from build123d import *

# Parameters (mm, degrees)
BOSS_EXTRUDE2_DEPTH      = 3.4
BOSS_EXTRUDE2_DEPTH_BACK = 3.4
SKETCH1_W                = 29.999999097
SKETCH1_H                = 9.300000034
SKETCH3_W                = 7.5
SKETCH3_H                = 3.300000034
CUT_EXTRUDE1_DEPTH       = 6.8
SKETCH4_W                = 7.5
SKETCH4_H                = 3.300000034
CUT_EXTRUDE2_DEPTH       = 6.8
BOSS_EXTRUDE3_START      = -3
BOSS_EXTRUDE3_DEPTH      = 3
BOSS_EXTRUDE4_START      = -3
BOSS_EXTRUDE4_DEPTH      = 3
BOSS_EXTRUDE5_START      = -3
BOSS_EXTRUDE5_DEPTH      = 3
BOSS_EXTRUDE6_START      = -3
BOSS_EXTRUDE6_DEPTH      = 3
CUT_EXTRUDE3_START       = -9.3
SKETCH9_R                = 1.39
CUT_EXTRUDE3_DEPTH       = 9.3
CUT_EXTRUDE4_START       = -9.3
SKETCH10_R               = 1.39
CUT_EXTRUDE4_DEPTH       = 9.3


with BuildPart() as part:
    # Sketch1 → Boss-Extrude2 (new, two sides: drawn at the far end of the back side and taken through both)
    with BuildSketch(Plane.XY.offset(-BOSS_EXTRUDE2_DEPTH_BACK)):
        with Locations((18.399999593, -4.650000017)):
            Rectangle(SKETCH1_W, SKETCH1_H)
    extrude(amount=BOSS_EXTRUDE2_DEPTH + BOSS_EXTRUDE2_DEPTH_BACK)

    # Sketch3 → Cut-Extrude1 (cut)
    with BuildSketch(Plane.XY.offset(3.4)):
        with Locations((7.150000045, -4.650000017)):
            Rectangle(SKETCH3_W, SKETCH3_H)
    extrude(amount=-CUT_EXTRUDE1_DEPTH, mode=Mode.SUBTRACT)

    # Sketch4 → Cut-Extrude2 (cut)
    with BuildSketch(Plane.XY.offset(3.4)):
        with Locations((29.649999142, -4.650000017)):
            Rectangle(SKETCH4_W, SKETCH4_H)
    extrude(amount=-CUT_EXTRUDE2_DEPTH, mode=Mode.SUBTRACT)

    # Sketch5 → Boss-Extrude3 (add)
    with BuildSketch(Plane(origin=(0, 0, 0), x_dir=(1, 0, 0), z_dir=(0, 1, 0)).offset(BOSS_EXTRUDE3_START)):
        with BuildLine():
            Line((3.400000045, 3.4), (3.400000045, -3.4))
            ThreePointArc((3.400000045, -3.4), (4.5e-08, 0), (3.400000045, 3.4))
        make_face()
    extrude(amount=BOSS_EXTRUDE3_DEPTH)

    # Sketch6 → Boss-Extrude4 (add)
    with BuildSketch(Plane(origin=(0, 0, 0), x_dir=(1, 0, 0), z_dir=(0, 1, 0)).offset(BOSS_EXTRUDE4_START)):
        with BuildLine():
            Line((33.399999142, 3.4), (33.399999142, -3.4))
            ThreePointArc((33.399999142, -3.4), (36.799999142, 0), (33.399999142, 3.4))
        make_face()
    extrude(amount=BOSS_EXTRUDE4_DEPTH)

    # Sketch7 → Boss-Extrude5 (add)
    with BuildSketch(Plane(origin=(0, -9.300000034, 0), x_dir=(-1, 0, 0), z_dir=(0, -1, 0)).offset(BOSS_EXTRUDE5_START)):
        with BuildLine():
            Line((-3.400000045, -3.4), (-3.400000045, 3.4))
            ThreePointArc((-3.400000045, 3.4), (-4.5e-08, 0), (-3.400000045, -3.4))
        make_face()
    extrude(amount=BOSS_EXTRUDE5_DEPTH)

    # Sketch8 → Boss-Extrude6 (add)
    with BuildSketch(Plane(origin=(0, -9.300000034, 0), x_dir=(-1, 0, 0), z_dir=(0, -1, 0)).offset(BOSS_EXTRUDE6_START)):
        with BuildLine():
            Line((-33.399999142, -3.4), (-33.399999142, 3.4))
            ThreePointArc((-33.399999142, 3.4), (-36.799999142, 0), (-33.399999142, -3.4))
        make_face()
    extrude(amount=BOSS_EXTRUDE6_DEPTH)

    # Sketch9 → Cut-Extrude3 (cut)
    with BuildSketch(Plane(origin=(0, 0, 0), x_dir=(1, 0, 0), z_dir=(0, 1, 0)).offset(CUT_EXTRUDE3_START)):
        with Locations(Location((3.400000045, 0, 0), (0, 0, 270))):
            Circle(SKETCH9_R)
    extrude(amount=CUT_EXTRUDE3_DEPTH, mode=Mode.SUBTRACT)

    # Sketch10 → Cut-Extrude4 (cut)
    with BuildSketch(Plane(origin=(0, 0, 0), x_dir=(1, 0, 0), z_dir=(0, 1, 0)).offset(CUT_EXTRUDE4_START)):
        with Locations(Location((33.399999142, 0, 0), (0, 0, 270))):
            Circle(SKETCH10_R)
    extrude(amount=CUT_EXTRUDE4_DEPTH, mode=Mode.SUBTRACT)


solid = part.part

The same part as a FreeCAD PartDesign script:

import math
import FreeCAD as App
import Part
import Sketcher

V = App.Vector
Q = App.Units.Quantity

doc = App.newDocument("Part")
params = doc.addObject("Spreadsheet::Sheet", "Params")
for row, (alias, value) in enumerate([
    ("sketch1_width", "29.999999 mm"),
    ("sketch1_height", "9.3 mm"),
    ("pad1_length", "3.4 mm"),
    ("pad1_length2", "3.4 mm"),
    ("sketch2_width", "7.5 mm"),
    ("sketch2_height", "3.3 mm"),
    ("pocket1_length", "6.8 mm"),
    ("sketch3_width", "7.5 mm"),
    ("sketch3_height", "3.3 mm"),
    ("pocket2_length", "6.8 mm"),
    ("sketch4_radius", "3.4 mm"),
    ("pad2_length", "3 mm"),
    ("sketch5_radius", "3.4 mm"),
    ("pad3_length", "3 mm"),
    ("sketch6_radius", "3.4 mm"),
    ("pad4_length", "3 mm"),
    ("sketch7_radius", "3.4 mm"),
    ("pad5_length", "3 mm"),
    ("sketch8_diameter", "2.78 mm"),
    ("pocket3_length", "9.3 mm"),
    ("sketch9_diameter", "2.78 mm"),
    ("pocket4_length", "9.3 mm"),
], start=1):
    params.set(f"A{row}", alias)
    params.set(f"B{row}", "=" + value)
    params.setAlias(f"B{row}", alias)

body = doc.addObject("PartDesign::Body", "Body")

# Sketch on XY plane
sketch1 = doc.addObject("Sketcher::SketchObject", "Sketch")
body.addObject(sketch1)
sketch1.AttachmentSupport = (doc.XY_Plane, [""])
sketch1.MapMode = "FlatFace"
sketch1.addGeometry(Part.LineSegment(V(3, 0, 0), V(3, -9, 0)), False)
sketch1.addGeometry(Part.LineSegment(V(3, -9, 0), V(33, -9, 0)), False)
sketch1.addGeometry(Part.LineSegment(V(33, -9, 0), V(33, 0, 0)), False)
sketch1.addGeometry(Part.LineSegment(V(33, 0, 0), V(3, 0, 0)), False)
sketch1.addConstraint(Sketcher.Constraint("Coincident", 0, 2, 1, 1))
sketch1.addConstraint(Sketcher.Constraint("Coincident", 1, 2, 2, 1))
sketch1.addConstraint(Sketcher.Constraint("Coincident", 2, 2, 3, 1))
sketch1.addConstraint(Sketcher.Constraint("Coincident", 3, 2, 0, 1))
sketch1.addConstraint(Sketcher.Constraint("Vertical", 0))
sketch1.addConstraint(Sketcher.Constraint("Horizontal", 1))
sketch1.addConstraint(Sketcher.Constraint("Vertical", 2))
sketch1.addConstraint(Sketcher.Constraint("Horizontal", 3))
sketch1.addConstraint(Sketcher.Constraint("PointOnObject", 2, 2, -1))
sketch1.addConstraint(Sketcher.Constraint("DistanceX", 1, 1, 1, 2, Q("29.999999 mm")))
sketch1.addConstraint(Sketcher.Constraint("DistanceY", 0, 2, 0, 1, Q("9.3 mm")))
sketch1.addConstraint(Sketcher.Constraint("DistanceX", -1, 1, 0, 2, Q("3.4 mm")))
sketch1.setExpression("Constraints[9]", "Params.sketch1_width")
sketch1.setExpression("Constraints[10]", "Params.sketch1_height")
pad1 = doc.addObject("PartDesign::Pad", "Pad")
body.addObject(pad1)
pad1.Profile = sketch1
pad1.Type = "TwoLengths"
pad1.setExpression("Length", "Params.pad1_length")
pad1.setExpression("Length2", "Params.pad1_length2")

# Sketch on XY plane
sketch2 = doc.addObject("Sketcher::SketchObject", "Sketch001")
body.addObject(sketch2)
sketch2.AttachmentSupport = (doc.XY_Plane, [""])
sketch2.MapMode = "FlatFace"
sketch2.AttachmentOffset = App.Placement(V(0, 0, 3.4), App.Rotation())
sketch2.addGeometry(Part.LineSegment(V(3.4, -3, 0), V(3.4, -6.3, 0)), False)
sketch2.addGeometry(Part.LineSegment(V(3.4, -6.3, 0), V(10.9, -6.3, 0)), False)
sketch2.addGeometry(Part.LineSegment(V(10.9, -6.3, 0), V(10.9, -3, 0)), False)
sketch2.addGeometry(Part.LineSegment(V(10.9, -3, 0), V(3.4, -3, 0)), False)
sketch2.addConstraint(Sketcher.Constraint("Coincident", 0, 2, 1, 1))
sketch2.addConstraint(Sketcher.Constraint("Coincident", 1, 2, 2, 1))
sketch2.addConstraint(Sketcher.Constraint("Coincident", 2, 2, 3, 1))
sketch2.addConstraint(Sketcher.Constraint("Coincident", 3, 2, 0, 1))
sketch2.addConstraint(Sketcher.Constraint("Vertical", 0))
sketch2.addConstraint(Sketcher.Constraint("Horizontal", 1))
sketch2.addConstraint(Sketcher.Constraint("Vertical", 2))
sketch2.addConstraint(Sketcher.Constraint("Horizontal", 3))
sketch2.addConstraint(Sketcher.Constraint("DistanceX", 1, 1, 1, 2, Q("7.5 mm")))
sketch2.addConstraint(Sketcher.Constraint("DistanceY", 0, 2, 0, 1, Q("3.3 mm")))
sketch2.addConstraint(Sketcher.Constraint("DistanceY", 2, 2, -1, 1, Q("3 mm")))
sketch2.addConstraint(Sketcher.Constraint("DistanceX", -1, 1, 0, 2, Q("3.4 mm")))
sketch2.setExpression("Constraints[8]", "Params.sketch2_width")
sketch2.setExpression("Constraints[9]", "Params.sketch2_height")
pocket1 = doc.addObject("PartDesign::Pocket", "Pocket")
body.addObject(pocket1)
pocket1.Profile = sketch2
pocket1.setExpression("Length", "Params.pocket1_length")

# Sketch on XY plane
sketch3 = doc.addObject("Sketcher::SketchObject", "Sketch002")
body.addObject(sketch3)
sketch3.AttachmentSupport = (doc.XY_Plane, [""])
sketch3.MapMode = "FlatFace"
sketch3.AttachmentOffset = App.Placement(V(0, 0, 3.4), App.Rotation())
sketch3.addGeometry(Part.LineSegment(V(25.9, -3, 0), V(25.9, -6.3, 0)), False)
sketch3.addGeometry(Part.LineSegment(V(25.9, -6.3, 0), V(33.4, -6.3, 0)), False)
sketch3.addGeometry(Part.LineSegment(V(33.4, -6.3, 0), V(33.4, -3, 0)), False)
sketch3.addGeometry(Part.LineSegment(V(33.4, -3, 0), V(25.9, -3, 0)), False)
sketch3.addConstraint(Sketcher.Constraint("Coincident", 0, 2, 1, 1))
sketch3.addConstraint(Sketcher.Constraint("Coincident", 1, 2, 2, 1))
sketch3.addConstraint(Sketcher.Constraint("Coincident", 2, 2, 3, 1))
sketch3.addConstraint(Sketcher.Constraint("Coincident", 3, 2, 0, 1))
sketch3.addConstraint(Sketcher.Constraint("Vertical", 0))
sketch3.addConstraint(Sketcher.Constraint("Horizontal", 1))
sketch3.addConstraint(Sketcher.Constraint("Vertical", 2))
sketch3.addConstraint(Sketcher.Constraint("Horizontal", 3))
sketch3.addConstraint(Sketcher.Constraint("DistanceX", 1, 1, 1, 2, Q("7.5 mm")))
sketch3.addConstraint(Sketcher.Constraint("DistanceY", 0, 2, 0, 1, Q("3.3 mm")))
sketch3.addConstraint(Sketcher.Constraint("DistanceY", 2, 2, -1, 1, Q("3 mm")))
sketch3.addConstraint(Sketcher.Constraint("DistanceX", -1, 1, 0, 2, Q("25.899999 mm")))
sketch3.setExpression("Constraints[8]", "Params.sketch3_width")
sketch3.setExpression("Constraints[9]", "Params.sketch3_height")
pocket2 = doc.addObject("PartDesign::Pocket", "Pocket001")
body.addObject(pocket2)
pocket2.Profile = sketch3
pocket2.setExpression("Length", "Params.pocket2_length")

# Sketch on XZ plane
sketch4 = doc.addObject("Sketcher::SketchObject", "Sketch003")
body.addObject(sketch4)
sketch4.AttachmentSupport = (doc.XZ_Plane, [""])
sketch4.MapMode = "FlatFace"
sketch4.AttachmentOffset = App.Placement(V(0, 0, 3), App.Rotation())
sketch4.addGeometry(Part.LineSegment(V(3.4, 3.4, 0), V(3.4, -3.4, 0)), False)
sketch4.addGeometry(Part.ArcOfCircle(Part.Circle(V(3.4, 0, 0), V(0, 0, 1), 3.4), math.radians(90), math.radians(270)), False)
sketch4.addConstraint(Sketcher.Constraint("Coincident", 0, 1, 1, 1))
sketch4.addConstraint(Sketcher.Constraint("Coincident", 1, 2, 0, 2))
sketch4.addConstraint(Sketcher.Constraint("Vertical", 0))
sketch4.addConstraint(Sketcher.Constraint("PointOnObject", 1, 3, -1))
sketch4.addConstraint(Sketcher.Constraint("Vertical", 1, 3, 0, 1))
sketch4.addConstraint(Sketcher.Constraint("Radius", 1, Q("3.4 mm")))
sketch4.addConstraint(Sketcher.Constraint("DistanceX", -1, 1, 1, 3, Q("3.4 mm")))
sketch4.setExpression("Constraints[5]", "Params.sketch4_radius")
pad2 = doc.addObject("PartDesign::Pad", "Pad001")
body.addObject(pad2)
pad2.Profile = sketch4
pad2.setExpression("Length", "Params.pad2_length")
pad2.Reversed = True

# Sketch on XZ plane
sketch5 = doc.addObject("Sketcher::SketchObject", "Sketch004")
body.addObject(sketch5)
sketch5.AttachmentSupport = (doc.XZ_Plane, [""])
sketch5.MapMode = "FlatFace"
sketch5.AttachmentOffset = App.Placement(V(0, 0, 3), App.Rotation())
sketch5.addGeometry(Part.LineSegment(V(33.4, -3.4, 0), V(33.4, 3.4, 0)), False)
sketch5.addGeometry(Part.ArcOfCircle(Part.Circle(V(33.4, 0, 0), V(0, 0, 1), 3.4), math.radians(-90), math.radians(90)), False)
sketch5.addConstraint(Sketcher.Constraint("Coincident", 0, 1, 1, 1))
sketch5.addConstraint(Sketcher.Constraint("Coincident", 1, 2, 0, 2))
sketch5.addConstraint(Sketcher.Constraint("Vertical", 0))
sketch5.addConstraint(Sketcher.Constraint("PointOnObject", 1, 3, -1))
sketch5.addConstraint(Sketcher.Constraint("Vertical", 1, 3, 0, 1))
sketch5.addConstraint(Sketcher.Constraint("Radius", 1, Q("3.4 mm")))
sketch5.addConstraint(Sketcher.Constraint("DistanceX", -1, 1, 1, 3, Q("33.399999 mm")))
sketch5.setExpression("Constraints[5]", "Params.sketch5_radius")
pad3 = doc.addObject("PartDesign::Pad", "Pad002")
body.addObject(pad3)
pad3.Profile = sketch5
pad3.setExpression("Length", "Params.pad3_length")
pad3.Reversed = True

# Sketch on XZ plane
sketch6 = doc.addObject("Sketcher::SketchObject", "Sketch005")
body.addObject(sketch6)
sketch6.AttachmentSupport = (doc.XZ_Plane, [""])
sketch6.MapMode = "FlatFace"
sketch6.AttachmentOffset = App.Placement(V(0, 0, 6.3), App.Rotation())
sketch6.addGeometry(Part.LineSegment(V(3.4, -3.4, 0), V(3.4, 3.4, 0)), False)
sketch6.addGeometry(Part.ArcOfCircle(Part.Circle(V(3.4, 0, 0), V(0, 0, 1), 3.4), math.radians(90), math.radians(270)), False)
sketch6.addConstraint(Sketcher.Constraint("Coincident", 0, 1, 1, 2))
sketch6.addConstraint(Sketcher.Constraint("Coincident", 1, 1, 0, 2))
sketch6.addConstraint(Sketcher.Constraint("Vertical", 0))
sketch6.addConstraint(Sketcher.Constraint("PointOnObject", 1, 3, -1))
sketch6.addConstraint(Sketcher.Constraint("Vertical", 1, 3, 0, 1))
sketch6.addConstraint(Sketcher.Constraint("Radius", 1, Q("3.4 mm")))
sketch6.addConstraint(Sketcher.Constraint("DistanceX", -1, 1, 1, 3, Q("3.4 mm")))
sketch6.setExpression("Constraints[5]", "Params.sketch6_radius")
pad4 = doc.addObject("PartDesign::Pad", "Pad003")
body.addObject(pad4)
pad4.Profile = sketch6
pad4.setExpression("Length", "Params.pad4_length")

# Sketch on XZ plane
sketch7 = doc.addObject("Sketcher::SketchObject", "Sketch006")
body.addObject(sketch7)
sketch7.AttachmentSupport = (doc.XZ_Plane, [""])
sketch7.MapMode = "FlatFace"
sketch7.AttachmentOffset = App.Placement(V(0, 0, 6.3), App.Rotation())
sketch7.addGeometry(Part.LineSegment(V(33.4, 3.4, 0), V(33.4, -3.4, 0)), False)
sketch7.addGeometry(Part.ArcOfCircle(Part.Circle(V(33.4, 0, 0), V(0, 0, 1), 3.4), math.radians(-90), math.radians(90)), False)
sketch7.addConstraint(Sketcher.Constraint("Coincident", 0, 1, 1, 2))
sketch7.addConstraint(Sketcher.Constraint("Coincident", 1, 1, 0, 2))
sketch7.addConstraint(Sketcher.Constraint("Vertical", 0))
sketch7.addConstraint(Sketcher.Constraint("PointOnObject", 1, 3, -1))
sketch7.addConstraint(Sketcher.Constraint("Vertical", 1, 3, 0, 1))
sketch7.addConstraint(Sketcher.Constraint("Radius", 1, Q("3.4 mm")))
sketch7.addConstraint(Sketcher.Constraint("DistanceX", -1, 1, 1, 3, Q("33.399999 mm")))
sketch7.setExpression("Constraints[5]", "Params.sketch7_radius")
pad5 = doc.addObject("PartDesign::Pad", "Pad004")
body.addObject(pad5)
pad5.Profile = sketch7
pad5.setExpression("Length", "Params.pad5_length")

# Sketch on XZ plane
sketch8 = doc.addObject("Sketcher::SketchObject", "Sketch007")
body.addObject(sketch8)
sketch8.AttachmentSupport = (doc.XZ_Plane, [""])
sketch8.MapMode = "FlatFace"
sketch8.AttachmentOffset = App.Placement(V(0, 0, 9.3), App.Rotation())
sketch8.addGeometry(Part.Circle(V(3.4, 0, 0), V(0, 0, 1), 1.4), False)
sketch8.addConstraint(Sketcher.Constraint("PointOnObject", 0, 3, -1))
sketch8.addConstraint(Sketcher.Constraint("Diameter", 0, Q("2.78 mm")))
sketch8.addConstraint(Sketcher.Constraint("DistanceX", -1, 1, 0, 3, Q("3.4 mm")))
sketch8.setExpression("Constraints[1]", "Params.sketch8_diameter")
pocket3 = doc.addObject("PartDesign::Pocket", "Pocket002")
body.addObject(pocket3)
pocket3.Profile = sketch8
pocket3.setExpression("Length", "Params.pocket3_length")

# Sketch on XZ plane
sketch9 = doc.addObject("Sketcher::SketchObject", "Sketch008")
body.addObject(sketch9)
sketch9.AttachmentSupport = (doc.XZ_Plane, [""])
sketch9.MapMode = "FlatFace"
sketch9.AttachmentOffset = App.Placement(V(0, 0, 9.3), App.Rotation())
sketch9.addGeometry(Part.Circle(V(33.4, 0, 0), V(0, 0, 1), 1.4), False)
sketch9.addConstraint(Sketcher.Constraint("PointOnObject", 0, 3, -1))
sketch9.addConstraint(Sketcher.Constraint("Diameter", 0, Q("2.78 mm")))
sketch9.addConstraint(Sketcher.Constraint("DistanceX", -1, 1, 0, 3, Q("33.399999 mm")))
sketch9.setExpression("Constraints[1]", "Params.sketch9_diameter")
pocket4 = doc.addObject("PartDesign::Pocket", "Pocket003")
body.addObject(pocket4)
pocket4.Profile = sketch9
pocket4.setExpression("Length", "Params.pocket4_length")

doc.recompute()
